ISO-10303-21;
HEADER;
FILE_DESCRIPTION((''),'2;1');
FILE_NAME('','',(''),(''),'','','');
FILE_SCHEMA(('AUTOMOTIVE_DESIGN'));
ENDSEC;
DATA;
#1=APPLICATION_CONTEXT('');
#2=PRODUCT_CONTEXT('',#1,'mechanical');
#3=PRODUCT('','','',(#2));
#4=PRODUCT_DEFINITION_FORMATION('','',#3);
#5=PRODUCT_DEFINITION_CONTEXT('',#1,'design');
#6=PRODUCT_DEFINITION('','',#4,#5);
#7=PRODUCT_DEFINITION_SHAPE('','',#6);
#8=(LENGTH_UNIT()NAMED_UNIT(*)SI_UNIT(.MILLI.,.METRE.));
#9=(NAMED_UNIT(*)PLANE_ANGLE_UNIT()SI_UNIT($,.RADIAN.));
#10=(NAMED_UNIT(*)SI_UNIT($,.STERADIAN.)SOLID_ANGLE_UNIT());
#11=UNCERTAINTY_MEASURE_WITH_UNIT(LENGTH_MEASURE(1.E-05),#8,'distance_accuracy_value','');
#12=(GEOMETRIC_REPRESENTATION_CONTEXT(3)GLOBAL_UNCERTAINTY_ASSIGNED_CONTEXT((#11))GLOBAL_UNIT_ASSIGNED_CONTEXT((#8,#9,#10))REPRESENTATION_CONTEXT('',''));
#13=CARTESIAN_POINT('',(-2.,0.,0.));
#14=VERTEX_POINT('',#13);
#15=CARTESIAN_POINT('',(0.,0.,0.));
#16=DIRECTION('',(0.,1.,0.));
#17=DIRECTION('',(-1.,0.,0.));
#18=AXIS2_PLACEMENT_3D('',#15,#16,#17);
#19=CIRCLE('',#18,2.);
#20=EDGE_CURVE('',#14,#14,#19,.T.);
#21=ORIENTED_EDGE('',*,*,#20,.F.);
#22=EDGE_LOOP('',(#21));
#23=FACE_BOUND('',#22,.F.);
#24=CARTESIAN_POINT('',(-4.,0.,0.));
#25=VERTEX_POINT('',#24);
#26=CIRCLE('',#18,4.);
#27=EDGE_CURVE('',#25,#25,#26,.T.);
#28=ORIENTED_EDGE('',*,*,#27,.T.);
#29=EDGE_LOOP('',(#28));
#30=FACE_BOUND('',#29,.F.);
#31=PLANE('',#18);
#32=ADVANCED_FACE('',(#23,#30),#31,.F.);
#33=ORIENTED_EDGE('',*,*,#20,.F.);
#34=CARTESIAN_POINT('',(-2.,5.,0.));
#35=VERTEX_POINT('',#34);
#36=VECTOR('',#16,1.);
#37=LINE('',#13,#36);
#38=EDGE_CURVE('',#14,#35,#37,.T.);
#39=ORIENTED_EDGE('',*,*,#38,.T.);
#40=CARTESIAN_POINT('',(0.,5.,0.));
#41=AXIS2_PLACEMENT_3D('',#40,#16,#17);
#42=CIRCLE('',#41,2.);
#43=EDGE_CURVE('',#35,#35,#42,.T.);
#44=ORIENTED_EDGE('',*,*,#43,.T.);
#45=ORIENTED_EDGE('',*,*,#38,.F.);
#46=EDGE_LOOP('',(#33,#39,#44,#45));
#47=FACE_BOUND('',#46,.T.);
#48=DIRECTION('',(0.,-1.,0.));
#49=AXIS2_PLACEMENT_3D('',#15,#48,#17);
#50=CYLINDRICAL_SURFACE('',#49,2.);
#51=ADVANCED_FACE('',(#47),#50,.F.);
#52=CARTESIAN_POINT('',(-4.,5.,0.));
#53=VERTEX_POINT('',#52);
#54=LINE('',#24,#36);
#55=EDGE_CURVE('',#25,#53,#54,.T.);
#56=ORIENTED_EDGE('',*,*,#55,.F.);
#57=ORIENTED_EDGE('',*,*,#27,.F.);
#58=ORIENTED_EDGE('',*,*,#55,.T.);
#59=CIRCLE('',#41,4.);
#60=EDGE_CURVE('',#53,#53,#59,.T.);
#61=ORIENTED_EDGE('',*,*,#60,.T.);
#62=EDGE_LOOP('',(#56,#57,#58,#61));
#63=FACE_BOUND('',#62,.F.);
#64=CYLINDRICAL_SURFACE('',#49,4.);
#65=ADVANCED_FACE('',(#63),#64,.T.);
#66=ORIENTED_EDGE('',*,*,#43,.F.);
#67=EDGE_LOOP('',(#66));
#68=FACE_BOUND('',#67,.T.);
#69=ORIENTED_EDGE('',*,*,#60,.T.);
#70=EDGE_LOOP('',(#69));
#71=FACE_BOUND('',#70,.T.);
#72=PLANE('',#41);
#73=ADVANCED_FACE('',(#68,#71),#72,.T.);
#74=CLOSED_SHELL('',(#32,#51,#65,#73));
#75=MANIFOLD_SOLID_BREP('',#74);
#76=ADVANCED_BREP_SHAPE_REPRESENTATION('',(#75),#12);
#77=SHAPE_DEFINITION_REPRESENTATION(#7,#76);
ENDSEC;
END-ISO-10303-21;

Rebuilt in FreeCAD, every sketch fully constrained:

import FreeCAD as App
import Part
import Sketcher
from FreeCAD import Vector
Q = App.Units.Quantity

doc = App.newDocument("Part")
body = doc.addObject("PartDesign::Body", "Body")

# Sketch on XZ plane
sketch1 = body.newObject("Sketcher::SketchObject", "Sketch")
sketch1.AttachmentSupport = (doc.getObject("XZ_Plane"), [""])
sketch1.MapMode = "FlatFace"
sketch1.addGeometry([
    Part.Circle(Vector(0, 0, 0), Vector(0, 0, 1), 4),
    Part.Circle(Vector(0, 0, 0), Vector(0, 0, 1), 2),
], False)
sketch1.addConstraint([
    Sketcher.Constraint("Coincident", 0, 3, -1, 1),
    Sketcher.Constraint("Coincident", 1, 3, -1, 1),
    Sketcher.Constraint("Diameter", 0, Q("8 mm")),
    Sketcher.Constraint("Diameter", 1, Q("4 mm")),
])
pad1 = body.newObject("PartDesign::Pad", "Pad")
pad1.Profile = sketch1
pad1.Length = 5
pad1.Reversed = True

doc.recompute()
